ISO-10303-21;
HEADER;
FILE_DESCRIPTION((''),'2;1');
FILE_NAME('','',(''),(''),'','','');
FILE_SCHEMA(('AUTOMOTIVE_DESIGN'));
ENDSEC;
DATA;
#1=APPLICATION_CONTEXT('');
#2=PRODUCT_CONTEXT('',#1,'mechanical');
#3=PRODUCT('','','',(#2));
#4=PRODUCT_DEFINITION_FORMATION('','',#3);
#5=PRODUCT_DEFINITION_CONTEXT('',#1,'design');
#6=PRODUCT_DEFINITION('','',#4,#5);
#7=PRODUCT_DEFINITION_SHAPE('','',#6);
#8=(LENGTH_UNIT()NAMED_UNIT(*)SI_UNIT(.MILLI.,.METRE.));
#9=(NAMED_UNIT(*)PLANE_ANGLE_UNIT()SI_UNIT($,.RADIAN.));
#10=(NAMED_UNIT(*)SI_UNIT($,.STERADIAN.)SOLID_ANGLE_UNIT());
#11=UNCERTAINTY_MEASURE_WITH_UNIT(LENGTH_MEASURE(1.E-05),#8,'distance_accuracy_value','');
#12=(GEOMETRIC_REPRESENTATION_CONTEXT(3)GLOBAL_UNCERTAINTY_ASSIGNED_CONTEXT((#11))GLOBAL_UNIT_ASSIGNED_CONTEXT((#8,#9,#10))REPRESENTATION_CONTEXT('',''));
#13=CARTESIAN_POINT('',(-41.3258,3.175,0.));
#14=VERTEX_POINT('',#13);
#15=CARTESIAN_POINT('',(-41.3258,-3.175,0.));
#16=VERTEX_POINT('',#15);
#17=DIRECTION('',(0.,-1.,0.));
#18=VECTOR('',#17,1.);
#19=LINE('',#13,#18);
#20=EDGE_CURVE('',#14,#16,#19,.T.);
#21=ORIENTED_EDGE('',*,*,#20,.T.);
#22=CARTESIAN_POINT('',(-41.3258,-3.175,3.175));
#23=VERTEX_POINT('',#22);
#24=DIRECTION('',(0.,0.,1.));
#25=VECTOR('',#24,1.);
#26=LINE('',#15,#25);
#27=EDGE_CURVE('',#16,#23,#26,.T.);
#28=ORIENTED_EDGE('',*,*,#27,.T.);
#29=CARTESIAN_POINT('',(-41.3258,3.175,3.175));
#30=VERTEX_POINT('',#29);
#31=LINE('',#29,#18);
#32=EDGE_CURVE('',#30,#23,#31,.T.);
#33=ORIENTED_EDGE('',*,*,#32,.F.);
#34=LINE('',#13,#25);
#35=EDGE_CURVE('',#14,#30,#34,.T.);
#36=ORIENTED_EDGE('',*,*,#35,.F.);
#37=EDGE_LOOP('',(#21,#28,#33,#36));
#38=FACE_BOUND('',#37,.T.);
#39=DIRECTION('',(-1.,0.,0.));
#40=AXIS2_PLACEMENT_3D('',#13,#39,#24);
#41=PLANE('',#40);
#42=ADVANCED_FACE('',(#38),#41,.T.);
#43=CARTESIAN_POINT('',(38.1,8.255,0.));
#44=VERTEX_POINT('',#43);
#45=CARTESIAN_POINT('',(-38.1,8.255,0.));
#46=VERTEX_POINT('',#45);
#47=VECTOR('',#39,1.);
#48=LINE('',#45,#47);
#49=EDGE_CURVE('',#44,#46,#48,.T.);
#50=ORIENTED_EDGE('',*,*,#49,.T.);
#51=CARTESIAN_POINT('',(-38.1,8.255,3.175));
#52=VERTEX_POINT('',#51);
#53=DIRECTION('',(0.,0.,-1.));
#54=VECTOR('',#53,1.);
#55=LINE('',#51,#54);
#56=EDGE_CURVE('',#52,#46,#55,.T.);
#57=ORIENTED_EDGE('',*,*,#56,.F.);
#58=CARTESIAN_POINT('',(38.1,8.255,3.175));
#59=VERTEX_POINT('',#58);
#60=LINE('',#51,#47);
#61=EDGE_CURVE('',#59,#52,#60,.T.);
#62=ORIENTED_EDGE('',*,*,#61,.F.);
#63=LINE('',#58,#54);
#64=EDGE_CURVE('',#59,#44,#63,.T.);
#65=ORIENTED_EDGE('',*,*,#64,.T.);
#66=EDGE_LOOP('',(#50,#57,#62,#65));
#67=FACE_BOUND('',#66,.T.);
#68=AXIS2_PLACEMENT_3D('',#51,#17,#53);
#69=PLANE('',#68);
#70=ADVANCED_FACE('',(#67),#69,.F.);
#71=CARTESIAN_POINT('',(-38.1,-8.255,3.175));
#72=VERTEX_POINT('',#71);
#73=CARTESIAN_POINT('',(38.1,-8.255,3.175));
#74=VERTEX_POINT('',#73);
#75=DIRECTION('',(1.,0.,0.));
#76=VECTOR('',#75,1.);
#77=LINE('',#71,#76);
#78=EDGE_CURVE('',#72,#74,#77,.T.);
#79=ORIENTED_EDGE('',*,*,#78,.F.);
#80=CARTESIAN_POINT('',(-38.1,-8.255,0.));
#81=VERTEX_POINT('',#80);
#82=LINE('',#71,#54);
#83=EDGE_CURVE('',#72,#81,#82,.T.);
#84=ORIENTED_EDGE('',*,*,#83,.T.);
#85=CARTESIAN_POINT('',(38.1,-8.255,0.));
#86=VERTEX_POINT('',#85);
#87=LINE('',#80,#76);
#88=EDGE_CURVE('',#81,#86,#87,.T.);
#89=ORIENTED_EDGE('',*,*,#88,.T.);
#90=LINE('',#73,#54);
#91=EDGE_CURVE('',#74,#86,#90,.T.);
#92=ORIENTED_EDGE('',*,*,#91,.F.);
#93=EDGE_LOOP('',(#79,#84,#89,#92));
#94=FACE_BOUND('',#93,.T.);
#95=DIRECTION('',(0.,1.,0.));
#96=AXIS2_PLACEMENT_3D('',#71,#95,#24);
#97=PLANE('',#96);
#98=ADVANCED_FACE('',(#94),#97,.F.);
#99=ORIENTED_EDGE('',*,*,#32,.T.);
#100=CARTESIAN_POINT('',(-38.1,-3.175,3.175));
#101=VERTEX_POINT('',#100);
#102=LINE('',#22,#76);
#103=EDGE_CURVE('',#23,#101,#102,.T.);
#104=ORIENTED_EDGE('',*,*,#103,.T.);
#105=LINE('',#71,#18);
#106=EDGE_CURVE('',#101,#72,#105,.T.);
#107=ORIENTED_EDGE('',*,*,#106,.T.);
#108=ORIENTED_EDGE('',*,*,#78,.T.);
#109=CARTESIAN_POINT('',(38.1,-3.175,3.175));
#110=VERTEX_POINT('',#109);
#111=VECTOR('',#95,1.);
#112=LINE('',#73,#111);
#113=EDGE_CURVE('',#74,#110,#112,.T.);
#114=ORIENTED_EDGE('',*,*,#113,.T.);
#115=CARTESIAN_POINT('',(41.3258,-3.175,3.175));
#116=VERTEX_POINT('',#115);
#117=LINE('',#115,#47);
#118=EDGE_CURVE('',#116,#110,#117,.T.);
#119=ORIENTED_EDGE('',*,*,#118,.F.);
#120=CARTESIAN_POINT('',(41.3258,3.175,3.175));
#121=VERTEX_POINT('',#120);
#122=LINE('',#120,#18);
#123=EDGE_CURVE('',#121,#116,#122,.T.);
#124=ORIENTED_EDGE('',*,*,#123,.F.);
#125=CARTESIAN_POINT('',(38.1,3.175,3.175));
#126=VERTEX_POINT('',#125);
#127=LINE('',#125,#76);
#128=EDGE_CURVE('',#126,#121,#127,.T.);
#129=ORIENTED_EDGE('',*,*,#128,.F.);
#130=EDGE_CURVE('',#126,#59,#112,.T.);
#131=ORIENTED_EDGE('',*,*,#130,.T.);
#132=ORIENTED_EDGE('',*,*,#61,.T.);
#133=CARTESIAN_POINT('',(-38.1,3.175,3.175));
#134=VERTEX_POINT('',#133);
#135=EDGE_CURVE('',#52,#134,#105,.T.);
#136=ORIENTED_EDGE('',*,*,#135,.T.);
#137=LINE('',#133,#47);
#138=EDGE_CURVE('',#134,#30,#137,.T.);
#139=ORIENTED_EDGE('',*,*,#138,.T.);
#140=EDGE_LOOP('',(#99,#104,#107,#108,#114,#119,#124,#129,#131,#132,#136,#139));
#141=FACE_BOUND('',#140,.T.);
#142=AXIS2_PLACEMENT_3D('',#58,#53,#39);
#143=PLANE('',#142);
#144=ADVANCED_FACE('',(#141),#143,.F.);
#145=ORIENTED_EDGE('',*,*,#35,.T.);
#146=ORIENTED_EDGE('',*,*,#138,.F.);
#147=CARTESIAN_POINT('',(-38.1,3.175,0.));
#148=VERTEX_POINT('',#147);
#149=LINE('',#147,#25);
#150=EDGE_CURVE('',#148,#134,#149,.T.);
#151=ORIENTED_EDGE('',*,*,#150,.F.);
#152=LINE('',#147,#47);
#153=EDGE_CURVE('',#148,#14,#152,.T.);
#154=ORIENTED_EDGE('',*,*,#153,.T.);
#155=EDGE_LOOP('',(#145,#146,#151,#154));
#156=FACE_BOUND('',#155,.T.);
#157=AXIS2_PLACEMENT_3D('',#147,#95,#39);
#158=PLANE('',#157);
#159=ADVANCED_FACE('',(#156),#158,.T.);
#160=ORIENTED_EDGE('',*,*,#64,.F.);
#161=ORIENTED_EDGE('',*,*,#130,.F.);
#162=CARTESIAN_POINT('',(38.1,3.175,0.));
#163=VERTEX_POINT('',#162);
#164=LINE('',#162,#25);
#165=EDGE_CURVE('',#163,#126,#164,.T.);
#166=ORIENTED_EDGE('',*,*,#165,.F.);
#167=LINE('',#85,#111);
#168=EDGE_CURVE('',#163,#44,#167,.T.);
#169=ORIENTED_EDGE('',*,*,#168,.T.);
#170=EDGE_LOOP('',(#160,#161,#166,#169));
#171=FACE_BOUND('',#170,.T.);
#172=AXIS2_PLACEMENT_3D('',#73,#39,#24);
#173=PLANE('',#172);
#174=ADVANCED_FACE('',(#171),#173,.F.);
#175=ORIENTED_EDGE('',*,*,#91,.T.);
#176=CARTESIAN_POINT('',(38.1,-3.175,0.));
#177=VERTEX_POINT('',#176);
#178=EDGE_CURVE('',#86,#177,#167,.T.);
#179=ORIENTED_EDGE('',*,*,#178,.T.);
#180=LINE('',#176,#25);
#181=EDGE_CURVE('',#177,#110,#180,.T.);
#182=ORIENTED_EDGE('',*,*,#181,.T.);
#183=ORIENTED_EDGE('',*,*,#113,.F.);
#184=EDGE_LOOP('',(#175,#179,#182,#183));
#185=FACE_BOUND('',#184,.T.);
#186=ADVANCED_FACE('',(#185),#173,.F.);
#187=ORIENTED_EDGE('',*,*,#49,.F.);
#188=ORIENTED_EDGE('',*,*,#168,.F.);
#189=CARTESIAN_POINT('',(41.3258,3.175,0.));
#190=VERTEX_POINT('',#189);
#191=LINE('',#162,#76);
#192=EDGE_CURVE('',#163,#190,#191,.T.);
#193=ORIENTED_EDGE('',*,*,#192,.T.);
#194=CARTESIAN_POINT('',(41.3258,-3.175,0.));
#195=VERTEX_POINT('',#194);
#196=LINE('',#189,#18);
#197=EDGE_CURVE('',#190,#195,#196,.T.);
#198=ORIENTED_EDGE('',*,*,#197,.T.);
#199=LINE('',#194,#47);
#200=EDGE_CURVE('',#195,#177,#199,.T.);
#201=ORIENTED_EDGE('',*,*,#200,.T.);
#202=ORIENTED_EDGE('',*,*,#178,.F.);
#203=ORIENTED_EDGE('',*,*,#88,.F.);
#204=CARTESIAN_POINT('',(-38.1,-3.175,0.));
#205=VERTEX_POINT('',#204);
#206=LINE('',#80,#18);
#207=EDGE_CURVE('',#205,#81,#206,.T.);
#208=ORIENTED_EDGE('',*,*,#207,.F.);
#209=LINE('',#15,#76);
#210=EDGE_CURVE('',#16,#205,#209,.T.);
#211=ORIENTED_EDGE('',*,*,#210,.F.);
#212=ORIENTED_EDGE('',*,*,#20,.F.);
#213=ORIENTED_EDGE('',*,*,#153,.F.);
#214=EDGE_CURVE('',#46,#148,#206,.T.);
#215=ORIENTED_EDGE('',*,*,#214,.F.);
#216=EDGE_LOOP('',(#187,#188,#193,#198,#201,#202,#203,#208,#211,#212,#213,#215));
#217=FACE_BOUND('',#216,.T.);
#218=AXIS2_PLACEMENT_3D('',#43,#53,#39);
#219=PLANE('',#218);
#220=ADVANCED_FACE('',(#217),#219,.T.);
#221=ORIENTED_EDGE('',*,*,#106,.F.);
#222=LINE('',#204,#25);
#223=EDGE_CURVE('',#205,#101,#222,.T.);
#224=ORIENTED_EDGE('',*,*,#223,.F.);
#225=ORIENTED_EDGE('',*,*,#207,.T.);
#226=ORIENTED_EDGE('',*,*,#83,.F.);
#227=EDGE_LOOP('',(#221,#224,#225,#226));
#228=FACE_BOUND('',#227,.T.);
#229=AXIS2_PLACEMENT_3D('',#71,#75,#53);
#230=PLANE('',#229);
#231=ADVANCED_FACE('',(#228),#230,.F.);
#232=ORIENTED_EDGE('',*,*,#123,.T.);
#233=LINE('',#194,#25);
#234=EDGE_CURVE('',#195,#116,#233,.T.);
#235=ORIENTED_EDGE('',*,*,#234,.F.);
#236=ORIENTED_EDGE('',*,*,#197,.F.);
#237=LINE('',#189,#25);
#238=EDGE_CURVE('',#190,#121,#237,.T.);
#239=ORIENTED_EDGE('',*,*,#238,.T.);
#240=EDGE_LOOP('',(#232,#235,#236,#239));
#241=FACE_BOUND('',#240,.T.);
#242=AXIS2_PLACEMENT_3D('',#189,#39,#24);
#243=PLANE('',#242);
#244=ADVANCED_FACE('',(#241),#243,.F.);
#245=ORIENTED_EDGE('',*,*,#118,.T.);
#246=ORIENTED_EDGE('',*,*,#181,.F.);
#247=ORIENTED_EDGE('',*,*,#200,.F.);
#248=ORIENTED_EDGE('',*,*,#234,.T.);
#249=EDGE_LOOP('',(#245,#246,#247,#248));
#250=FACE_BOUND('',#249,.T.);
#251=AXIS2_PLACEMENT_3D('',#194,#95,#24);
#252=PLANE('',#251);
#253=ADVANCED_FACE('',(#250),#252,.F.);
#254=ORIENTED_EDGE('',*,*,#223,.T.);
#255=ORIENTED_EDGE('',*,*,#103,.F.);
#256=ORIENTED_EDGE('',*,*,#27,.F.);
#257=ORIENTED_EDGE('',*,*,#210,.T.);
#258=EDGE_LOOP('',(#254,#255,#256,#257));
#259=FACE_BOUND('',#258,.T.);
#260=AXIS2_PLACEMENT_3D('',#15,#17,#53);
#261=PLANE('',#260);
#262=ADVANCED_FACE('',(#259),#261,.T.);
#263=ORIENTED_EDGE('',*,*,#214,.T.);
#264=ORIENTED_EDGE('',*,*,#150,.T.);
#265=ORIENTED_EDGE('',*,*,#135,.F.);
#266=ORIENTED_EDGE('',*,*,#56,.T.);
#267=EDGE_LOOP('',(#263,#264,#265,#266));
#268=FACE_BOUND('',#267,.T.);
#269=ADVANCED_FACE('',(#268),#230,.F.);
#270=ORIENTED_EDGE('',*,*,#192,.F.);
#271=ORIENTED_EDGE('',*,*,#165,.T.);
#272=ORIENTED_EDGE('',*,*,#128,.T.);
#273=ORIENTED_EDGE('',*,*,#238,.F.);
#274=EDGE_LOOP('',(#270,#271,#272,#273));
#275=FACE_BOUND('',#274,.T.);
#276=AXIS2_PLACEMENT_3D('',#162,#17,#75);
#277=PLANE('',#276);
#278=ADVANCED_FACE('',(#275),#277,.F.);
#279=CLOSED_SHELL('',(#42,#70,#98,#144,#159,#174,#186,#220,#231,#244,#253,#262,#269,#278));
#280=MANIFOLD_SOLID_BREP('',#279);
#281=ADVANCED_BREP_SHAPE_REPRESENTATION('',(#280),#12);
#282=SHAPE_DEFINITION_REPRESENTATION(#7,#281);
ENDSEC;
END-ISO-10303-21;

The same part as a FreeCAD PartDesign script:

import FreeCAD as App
import Part
import Sketcher
Q = App.Units.Quantity


def add_polygon(sketch, points):
    """Adds a closed chain of lines whose ends are joined by coincident constraints."""
    first, n = sketch.GeometryCount, len(points)
    for a, b in zip(points, points[1:] + points[:1]):
        sketch.addGeometry(Part.LineSegment(App.Vector(*a, 0), App.Vector(*b, 0)), False)
    for i in range(n):
        sketch.addConstraint(Sketcher.Constraint("Coincident", first + i, 2, first + (i + 1) % n, 1))

doc = App.newDocument("Part")
body = doc.addObject("PartDesign::Body", "Body")

# Sketch on XY plane
sketch1 = body.newObject("Sketcher::SketchObject", "Sketch")
sketch1.AttachmentSupport = (doc.getObject("XY_Plane"), [""])
sketch1.MapMode = "FlatFace"
add_polygon(sketch1, [(-38.1, 8.255), (-38.1, -8.255), (38.1, -8.255), (38.1, 8.255)])  # lines 0-3
sketch1.addConstraint([
    Sketcher.Constraint("Vertical", 0),
    Sketcher.Constraint("Horizontal", 1),
    Sketcher.Constraint("Vertical", 2),
    Sketcher.Constraint("Horizontal", 3),
    Sketcher.Constraint("Symmetric", 0, 2, 2, 2, -1, 1),
    Sketcher.Constraint("DistanceX", 1, 1, 1, 2, Q("3 in")),
    Sketcher.Constraint("DistanceY", 0, 2, 0, 1, Q("0.65 in")),
])
pad1 = body.newObject("PartDesign::Pad", "Pad")
pad1.Profile = sketch1
pad1.Length = Q("0.125 in")

# Sketch on XY plane
sketch2 = body.newObject("Sketcher::SketchObject", "Sketch001")
sketch2.AttachmentSupport = (doc.getObject("XY_Plane"), [""])
sketch2.MapMode = "FlatFace"
sketch2.AttachmentOffset = App.Placement(App.Vector(0, 0, 0.125 * 25.4), App.Rotation())
add_polygon(sketch2, [(-38.1, 3.175), (-41.3258, 3.175), (-41.3258, -3.175), (-38.1, -3.175)])  # lines 0-3
sketch2.addConstraint([
    Sketcher.Constraint("Horizontal", 0),
    Sketcher.Constraint("Vertical", 1),
    Sketcher.Constraint("Horizontal", 2),
    Sketcher.Constraint("Vertical", 3),
    Sketcher.Constraint("DistanceY", 1, 2, 1, 1, Q("0.25 in")),
    Sketcher.Constraint("DistanceX", 2, 2, -1, 1, Q("1.5 in")),
    Sketcher.Constraint("DistanceX", 0, 2, 0, 1, Q("0.127 in")),
    Sketcher.Constraint("DistanceY", -1, 1, 0, 2, Q("0.125 in")),
])
pad2 = body.newObject("PartDesign::Pad", "Pad001")
pad2.Profile = sketch2
pad2.Length = Q("0.125 in")
pad2.Reversed = True
doc.recompute()

mirrored = body.newObject("PartDesign::Mirrored", "Mirrored")
mirrored.Originals = [pad2]
mirrored.MirrorPlane = (doc.getObject("YZ_Plane"), [""])
body.Tip = mirrored

doc.recompute()
